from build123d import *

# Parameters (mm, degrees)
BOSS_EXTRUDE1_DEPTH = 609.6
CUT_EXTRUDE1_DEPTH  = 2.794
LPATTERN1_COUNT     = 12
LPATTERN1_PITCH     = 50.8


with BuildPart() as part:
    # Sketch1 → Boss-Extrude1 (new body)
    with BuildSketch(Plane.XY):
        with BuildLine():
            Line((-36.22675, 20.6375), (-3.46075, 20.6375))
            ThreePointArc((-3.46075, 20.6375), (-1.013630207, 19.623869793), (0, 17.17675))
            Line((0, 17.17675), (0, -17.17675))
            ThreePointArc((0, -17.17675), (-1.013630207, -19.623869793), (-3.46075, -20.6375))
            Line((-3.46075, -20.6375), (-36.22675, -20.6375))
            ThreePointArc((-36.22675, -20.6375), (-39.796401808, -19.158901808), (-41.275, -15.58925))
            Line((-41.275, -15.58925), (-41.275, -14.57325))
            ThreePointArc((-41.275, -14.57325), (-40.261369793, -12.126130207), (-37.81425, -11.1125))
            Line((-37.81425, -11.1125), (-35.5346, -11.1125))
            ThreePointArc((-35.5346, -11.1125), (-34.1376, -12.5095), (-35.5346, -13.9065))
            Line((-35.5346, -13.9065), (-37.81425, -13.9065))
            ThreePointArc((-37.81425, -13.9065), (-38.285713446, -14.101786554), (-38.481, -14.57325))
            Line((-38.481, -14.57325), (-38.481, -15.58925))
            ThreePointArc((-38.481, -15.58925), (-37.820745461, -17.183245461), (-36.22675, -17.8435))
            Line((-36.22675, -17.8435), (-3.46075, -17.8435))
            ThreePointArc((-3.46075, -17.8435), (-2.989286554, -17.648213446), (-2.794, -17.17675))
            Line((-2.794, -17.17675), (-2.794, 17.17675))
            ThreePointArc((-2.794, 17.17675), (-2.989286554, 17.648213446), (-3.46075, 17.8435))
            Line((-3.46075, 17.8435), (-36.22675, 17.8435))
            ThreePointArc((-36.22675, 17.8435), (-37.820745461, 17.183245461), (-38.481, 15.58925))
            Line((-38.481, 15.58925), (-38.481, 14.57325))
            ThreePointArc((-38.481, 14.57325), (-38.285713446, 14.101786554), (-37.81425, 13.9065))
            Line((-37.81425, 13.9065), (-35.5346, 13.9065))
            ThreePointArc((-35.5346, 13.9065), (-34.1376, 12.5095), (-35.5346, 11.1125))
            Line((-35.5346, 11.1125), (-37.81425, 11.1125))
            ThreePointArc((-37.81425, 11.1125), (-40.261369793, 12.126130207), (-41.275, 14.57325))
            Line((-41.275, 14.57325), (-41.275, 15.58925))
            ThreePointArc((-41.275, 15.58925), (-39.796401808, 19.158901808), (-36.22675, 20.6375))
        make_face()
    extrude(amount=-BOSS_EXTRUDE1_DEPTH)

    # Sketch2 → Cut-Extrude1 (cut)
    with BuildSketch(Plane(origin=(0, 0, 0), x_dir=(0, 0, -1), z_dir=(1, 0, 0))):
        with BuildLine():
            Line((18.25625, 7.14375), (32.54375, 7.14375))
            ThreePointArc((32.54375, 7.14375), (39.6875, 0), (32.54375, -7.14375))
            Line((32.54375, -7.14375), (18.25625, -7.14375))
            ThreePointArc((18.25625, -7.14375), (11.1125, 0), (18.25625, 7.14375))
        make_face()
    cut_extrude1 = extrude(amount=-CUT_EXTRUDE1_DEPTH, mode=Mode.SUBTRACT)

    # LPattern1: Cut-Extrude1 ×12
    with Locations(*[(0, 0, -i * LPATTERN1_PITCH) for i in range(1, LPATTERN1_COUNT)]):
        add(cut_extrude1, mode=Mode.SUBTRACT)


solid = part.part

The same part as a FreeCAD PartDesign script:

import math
import FreeCAD as App
import Part
import Sketcher
Q = App.Units.Quantity

doc = App.newDocument("Part")
params = doc.addObject("Spreadsheet::Sheet", "Params")
for row, (alias, value) in enumerate([
    ("sketch1_radius", "0.055 in"),
    ("sketch1_width", "1.29 in"),
    ("sketch1_height", "0.04 in"),
    ("pad1_length", "24 in"),
    ("sketch2_radius", "0.28125 in"),
    ("sketch2_height", "0.5625 in"),
    ("pocket1_length", "0.11 in"),
    ("linearpattern_pitch", "2 in"),
], start=1):
    params.set(f"A{row}", alias)
    params.set(f"B{row}", "=" + value)
    params.setAlias(f"B{row}", alias)

body = doc.addObject("PartDesign::Body", "Body")

sketch1 = body.newObject("Sketcher::SketchObject", "Sketch")
sketch1.AttachmentSupport = (doc.getObject("XY_Plane"), [""])
sketch1.MapMode = "FlatFace"
sketch1.addGeometry(Part.LineSegment(App.Vector(-3.5, 20.6, 0), App.Vector(-36.2, 20.6, 0)), False)
sketch1.addGeometry(Part.ArcOfCircle(Part.Circle(App.Vector(-36.2, 15.6, 0), App.Vector(0, 0, 1), 5), math.radians(90), math.radians(180)), False)
sketch1.addGeometry(Part.LineSegment(App.Vector(-41.3, 15.6, 0), App.Vector(-41.3, 14.6, 0)), False)
sketch1.addGeometry(Part.ArcOfCircle(Part.Circle(App.Vector(-37.8, 14.6, 0), App.Vector(0, 0, 1), 3.5), math.radians(180), math.radians(270)), False)
sketch1.addGeometry(Part.LineSegment(App.Vector(-37.8, 11.1, 0), App.Vector(-35.5, 11.1, 0)), False)
sketch1.addGeometry(Part.ArcOfCircle(Part.Circle(App.Vector(-35.5, 12.5, 0), App.Vector(0, 0, 1), 1.4), math.radians(-90), math.radians(90)), False)
sketch1.addGeometry(Part.LineSegment(App.Vector(-35.5, 13.9, 0), App.Vector(-37.8, 13.9, 0)), False)
sketch1.addGeometry(Part.ArcOfCircle(Part.Circle(App.Vector(-37.8, 14.6, 0), App.Vector(0, 0, 1), 0.7), math.radians(-180), math.radians(-90)), False)
sketch1.addGeometry(Part.LineSegment(App.Vector(-38.5, 14.6, 0), App.Vector(-38.5, 15.6, 0)), False)
sketch1.addGeometry(Part.ArcOfCircle(Part.Circle(App.Vector(-36.2, 15.6, 0), App.Vector(0, 0, 1), 2.3), math.radians(90), math.radians(180)), False)
sketch1.addGeometry(Part.LineSegment(App.Vector(-36.2, 17.8, 0), App.Vector(-3.5, 17.8, 0)), False)
sketch1.addGeometry(Part.ArcOfCircle(Part.Circle(App.Vector(-3.5, 17.2, 0), App.Vector(0, 0, 1), 0.7), math.radians(0), math.radians(90)), False)
sketch1.addGeometry(Part.LineSegment(App.Vector(-2.8, 17.2, 0), App.Vector(-2.8, -17.2, 0)), False)
sketch1.addGeometry(Part.ArcOfCircle(Part.Circle(App.Vector(-3.5, -17.2, 0), App.Vector(0, 0, 1), 0.7), math.radians(-90), math.radians(0)), False)
sketch1.addGeometry(Part.LineSegment(App.Vector(-3.5, -17.8, 0), App.Vector(-36.2, -17.8, 0)), False)
sketch1.addGeometry(Part.ArcOfCircle(Part.Circle(App.Vector(-36.2, -15.6, 0), App.Vector(0, 0, 1), 2.3), math.radians(-180), math.radians(-90)), False)
sketch1.addGeometry(Part.LineSegment(App.Vector(-38.5, -15.6, 0), App.Vector(-38.5, -14.6, 0)), False)
sketch1.addGeometry(Part.ArcOfCircle(Part.Circle(App.Vector(-37.8, -14.6, 0), App.Vector(0, 0, 1), 0.7), math.radians(90), math.radians(180)), False)
sketch1.addGeometry(Part.LineSegment(App.Vector(-37.8, -13.9, 0), App.Vector(-35.5, -13.9, 0)), False)
sketch1.addGeometry(Part.ArcOfCircle(Part.Circle(App.Vector(-35.5, -12.5, 0), App.Vector(0, 0, 1), 1.4), math.radians(-90), math.radians(90)), False)
sketch1.addGeometry(Part.LineSegment(App.Vector(-35.5, -11.1, 0), App.Vector(-37.8, -11.1, 0)), False)
sketch1.addGeometry(Part.ArcOfCircle(Part.Circle(App.Vector(-37.8, -14.6, 0), App.Vector(0, 0, 1), 3.5), math.radians(90), math.radians(180)), False)
sketch1.addGeometry(Part.LineSegment(App.Vector(-41.3, -14.6, 0), App.Vector(-41.3, -15.6, 0)), False)
sketch1.addGeometry(Part.ArcOfCircle(Part.Circle(App.Vector(-36.2, -15.6, 0), App.Vector(0, 0, 1), 5), math.radians(180), math.radians(270)), False)
sketch1.addGeometry(Part.LineSegment(App.Vector(-36.2, -20.6, 0), App.Vector(-3.5, -20.6, 0)), False)
sketch1.addGeometry(Part.ArcOfCircle(Part.Circle(App.Vector(-3.5, -17.2, 0), App.Vector(0, 0, 1), 3.5), math.radians(-90), math.radians(0)), False)
sketch1.addGeometry(Part.LineSegment(App.Vector(0, -17.2, 0), App.Vector(0, 17.2, 0)), False)
sketch1.addGeometry(Part.ArcOfCircle(Part.Circle(App.Vector(-3.5, 17.2, 0), App.Vector(0, 0, 1), 3.5), math.radians(0), math.radians(90)), False)
sketch1.addConstraint(Sketcher.Constraint("Tangent", 0, 2, 1, 1))
sketch1.addConstraint(Sketcher.Constraint("Tangent", 1, 2, 2, 1))
sketch1.addConstraint(Sketcher.Constraint("Tangent", 2, 2, 3, 1))
sketch1.addConstraint(Sketcher.Constraint("Tangent", 3, 2, 4, 1))
sketch1.addConstraint(Sketcher.Constraint("Tangent", 4, 2, 5, 1))
sketch1.addConstraint(Sketcher.Constraint("Tangent", 5, 2, 6, 1))
sketch1.addConstraint(Sketcher.Constraint("Tangent", 6, 2, 7, 2))
sketch1.addConstraint(Sketcher.Constraint("Tangent", 7, 1, 8, 1))
sketch1.addConstraint(Sketcher.Constraint("Tangent", 8, 2, 9, 2))
sketch1.addConstraint(Sketcher.Constraint("Tangent", 9, 1, 10, 1))
sketch1.addConstraint(Sketcher.Constraint("Tangent", 10, 2, 11, 2))
sketch1.addConstraint(Sketcher.Constraint("Tangent", 11, 1, 12, 1))
sketch1.addConstraint(Sketcher.Constraint("Tangent", 12, 2, 13, 2))
sketch1.addConstraint(Sketcher.Constraint("Tangent", 13, 1, 14, 1))
sketch1.addConstraint(Sketcher.Constraint("Tangent", 14, 2, 15, 2))
sketch1.addConstraint(Sketcher.Constraint("Tangent", 15, 1, 16, 1))
sketch1.addConstraint(Sketcher.Constraint("Tangent", 16, 2, 17, 2))
sketch1.addConstraint(Sketcher.Constraint("Tangent", 17, 1, 18, 1))
sketch1.addConstraint(Sketcher.Constraint("Tangent", 18, 2, 19, 1))
sketch1.addConstraint(Sketcher.Constraint("Tangent", 19, 2, 20, 1))
sketch1.addConstraint(Sketcher.Constraint("Tangent", 20, 2, 21, 1))
sketch1.addConstraint(Sketcher.Constraint("Tangent", 21, 2, 22, 1))
sketch1.addConstraint(Sketcher.Constraint("Tangent", 22, 2, 23, 1))
sketch1.addConstraint(Sketcher.Constraint("Tangent", 23, 2, 24, 1))
sketch1.addConstraint(Sketcher.Constraint("Tangent", 24, 2, 25, 1))
sketch1.addConstraint(Sketcher.Constraint("Tangent", 25, 2, 26, 1))
sketch1.addConstraint(Sketcher.Constraint("Tangent", 26, 2, 27, 1))
sketch1.addConstraint(Sketcher.Constraint("Tangent", 27, 2, 0, 1))
sketch1.addConstraint(Sketcher.Constraint("Horizontal", 0))
sketch1.addConstraint(Sketcher.Constraint("Vertical", 2))
sketch1.addConstraint(Sketcher.Constraint("Horizontal", 4))
sketch1.addConstraint(Sketcher.Constraint("Horizontal", 6))
sketch1.addConstraint(Sketcher.Constraint("Vertical", 8))
sketch1.addConstraint(Sketcher.Constraint("Horizontal", 10))
sketch1.addConstraint(Sketcher.Constraint("Vertical", 12))
sketch1.addConstraint(Sketcher.Constraint("Horizontal", 14))
sketch1.addConstraint(Sketcher.Constraint("Vertical", 16))
sketch1.addConstraint(Sketcher.Constraint("Horizontal", 18))
sketch1.addConstraint(Sketcher.Constraint("Horizontal", 20))
sketch1.addConstraint(Sketcher.Constraint("Vertical", 22))
sketch1.addConstraint(Sketcher.Constraint("Horizontal", 24))
sketch1.addConstraint(Sketcher.Constraint("Vertical", 26))
sketch1.addConstraint(Sketcher.Constraint("Coincident", 7, 3, 3, 3))
sketch1.addConstraint(Sketcher.Constraint("Coincident", 9, 3, 1, 3))
sketch1.addConstraint(Sketcher.Constraint("Coincident", 21, 3, 17, 3))
sketch1.addConstraint(Sketcher.Constraint("Coincident", 23, 3, 15, 3))
sketch1.addConstraint(Sketcher.Constraint("Coincident", 25, 3, 13, 3))
sketch1.addConstraint(Sketcher.Constraint("Coincident", 27, 3, 11, 3))
sketch1.addConstraint(Sketcher.Constraint("Equal", 7, 11))
sketch1.addConstraint(Sketcher.Constraint("Equal", 11, 13))
sketch1.addConstraint(Sketcher.Constraint("Equal", 9, 15))
sketch1.addConstraint(Sketcher.Constraint("Equal", 13, 17))
sketch1.addConstraint(Sketcher.Constraint("Symmetric", 25, 2, 26, 2, -1, 1))
sketch1.addConstraint(Sketcher.Constraint("Symmetric", 3, 3, 17, 3, -1))
sketch1.addConstraint(Sketcher.Constraint("Vertical", 5, 3, 19, 3))
sketch1.addConstraint(Sketcher.Constraint("Radius", 5, Q("0.055 in")))
sketch1.addConstraint(Sketcher.Constraint("DistanceX", 0, 2, 0, 1, Q("1.29 in")))
sketch1.addConstraint(Sketcher.Constraint("DistanceY", 2, 2, 2, 1, Q("0.04 in")))
sketch1.addConstraint(Sketcher.Constraint("DistanceY", 13, 3, 9, 3, Q("1.29 in")))
sketch1.addConstraint(Sketcher.Constraint("DistanceY", 5, 3, 0, 2, Q("0.32 in")))
sketch1.addConstraint(Sketcher.Constraint("DistanceY", 12, 2, 12, 1, Q("1.3525 in")))
sketch1.addConstraint(Sketcher.Constraint("DistanceX", 5, 3, -1, 1, Q("1.399 in")))
sketch1.setExpression("Constraints[55]", "Params.sketch1_radius")
sketch1.setExpression("Constraints[56]", "Params.sketch1_width")
sketch1.setExpression("Constraints[57]", "Params.sketch1_height")
pad1 = body.newObject("PartDesign::Pad", "Pad")
pad1.Profile = sketch1
pad1.setExpression("Length", "Params.pad1_length")
pad1.Reversed = True

sketch2 = body.newObject("Sketcher::SketchObject", "Sketch001")
sketch2.AttachmentSupport = (doc.getObject("YZ_Plane"), [""])
sketch2.MapMode = "FlatFace"
sketch2.addGeometry(Part.LineSegment(App.Vector(7, -33, 0), App.Vector(7, -18, 0)), False)
sketch2.addGeometry(Part.ArcOfCircle(Part.Circle(App.Vector(0, -18, 0), App.Vector(0, 0, 1), 7), math.radians(0), math.radians(180)), False)
sketch2.addGeometry(Part.LineSegment(App.Vector(-7, -18, 0), App.Vector(-7, -33, 0)), False)
sketch2.addGeometry(Part.ArcOfCircle(Part.Circle(App.Vector(0, -33, 0), App.Vector(0, 0, 1), 7), math.radians(180), math.radians(360)), False)
sketch2.addConstraint(Sketcher.Constraint("Tangent", 0, 2, 1, 1))
sketch2.addConstraint(Sketcher.Constraint("Tangent", 1, 2, 2, 1))
sketch2.addConstraint(Sketcher.Constraint("Tangent", 2, 2, 3, 1))
sketch2.addConstraint(Sketcher.Constraint("Tangent", 3, 2, 0, 1))
sketch2.addConstraint(Sketcher.Constraint("Vertical", 0))
sketch2.addConstraint(Sketcher.Constraint("Vertical", 2))
sketch2.addConstraint(Sketcher.Constraint("PointOnObject", 1, 3, -2))
sketch2.addConstraint(Sketcher.Constraint("Radius", 1, Q("0.28125 in")))
sketch2.addConstraint(Sketcher.Constraint("DistanceY", 0, 1, 0, 2, Q("0.5625 in")))
sketch2.addConstraint(Sketcher.Constraint("DistanceY", 1, 3, -1, 1, Q("0.71875 in")))
sketch2.setExpression("Constraints[7]", "Params.sketch2_radius")
sketch2.setExpression("Constraints[8]", "Params.sketch2_height")
pocket1 = body.newObject("PartDesign::Pocket", "Pocket")
pocket1.Profile = sketch2
pocket1.setExpression("Length", "Params.pocket1_length")
doc.recompute()

linearpattern = body.newObject("PartDesign::LinearPattern", "LinearPattern")
linearpattern.Originals = [pocket1]
linearpattern.Direction = (doc.getObject("Z_Axis"), [""])
linearpattern.Mode = "offset"
linearpattern.setExpression("Offset", "Params.linearpattern_pitch")
linearpattern.Occurrences = 12
linearpattern.Reversed = True
body.Tip = linearpattern

doc.recompute()
